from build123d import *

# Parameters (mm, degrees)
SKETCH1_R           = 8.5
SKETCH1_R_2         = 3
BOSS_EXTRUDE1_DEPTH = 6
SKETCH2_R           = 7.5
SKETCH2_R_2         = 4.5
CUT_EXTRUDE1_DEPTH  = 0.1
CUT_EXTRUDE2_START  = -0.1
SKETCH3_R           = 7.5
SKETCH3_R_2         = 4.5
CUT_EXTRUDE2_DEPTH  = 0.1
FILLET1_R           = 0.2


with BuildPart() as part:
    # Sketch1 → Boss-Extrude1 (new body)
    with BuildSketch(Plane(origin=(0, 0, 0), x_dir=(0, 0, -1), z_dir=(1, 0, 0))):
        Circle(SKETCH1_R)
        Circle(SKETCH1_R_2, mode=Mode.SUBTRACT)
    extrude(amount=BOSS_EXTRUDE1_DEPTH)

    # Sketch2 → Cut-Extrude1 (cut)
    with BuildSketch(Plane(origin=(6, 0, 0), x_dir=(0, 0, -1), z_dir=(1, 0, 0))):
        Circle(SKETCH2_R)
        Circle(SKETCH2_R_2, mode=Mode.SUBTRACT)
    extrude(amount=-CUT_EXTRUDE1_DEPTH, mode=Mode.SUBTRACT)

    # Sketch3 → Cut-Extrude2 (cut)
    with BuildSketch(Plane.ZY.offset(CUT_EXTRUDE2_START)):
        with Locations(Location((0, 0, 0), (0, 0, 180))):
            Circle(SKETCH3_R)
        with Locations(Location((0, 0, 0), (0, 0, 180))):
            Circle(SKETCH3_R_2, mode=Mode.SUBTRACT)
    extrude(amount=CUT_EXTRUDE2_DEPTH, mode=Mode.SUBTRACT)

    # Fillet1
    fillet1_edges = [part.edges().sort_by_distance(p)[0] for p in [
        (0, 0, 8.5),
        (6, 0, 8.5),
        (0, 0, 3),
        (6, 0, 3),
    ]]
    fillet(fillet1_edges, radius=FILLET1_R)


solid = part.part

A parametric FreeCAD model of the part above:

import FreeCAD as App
import Part
import Sketcher
from FreeCAD import Vector


def edges_at(feature, points):
    """Names of the edges that pass closest to the given points."""
    edges = feature.Shape.Edges
    near = lambda p: min(range(len(edges)), key=lambda i: edges[i].distToShape(Part.Vertex(*p))[0])
    return sorted({f"Edge{near(p) + 1}" for p in points})

doc = App.newDocument("Part")
body = doc.addObject("PartDesign::Body", "Body")

# Sketch on YZ plane
sketch1 = body.newObject("Sketcher::SketchObject", "Sketch")
sketch1.AttachmentSupport = (doc.getObject("YZ_Plane"), [""])
sketch1.MapMode = "FlatFace"
sketch1.addGeometry(Part.Circle(Vector(0, 0, 0), Vector(0, 0, 1), 8.5), False)
sketch1.addGeometry(Part.Circle(Vector(0, 0, 0), Vector(0, 0, 1), 3), False)
sketch1.addConstraint(Sketcher.Constraint("Coincident", 0, 3, -1, 1))
sketch1.addConstraint(Sketcher.Constraint("Coincident", 1, 3, -1, 1))
sketch1.addConstraint(Sketcher.Constraint("Diameter", 0, 17.0))
sketch1.addConstraint(Sketcher.Constraint("Diameter", 1, 6.0))
pad1 = body.newObject("PartDesign::Pad", "Pad")
pad1.Profile = sketch1
pad1.Length = 6

# Sketch on YZ plane
sketch2 = body.newObject("Sketcher::SketchObject", "Sketch001")
sketch2.AttachmentSupport = (doc.getObject("YZ_Plane"), [""])
sketch2.MapMode = "FlatFace"
sketch2.AttachmentOffset = App.Placement(Vector(0, 0, 6), App.Rotation())
sketch2.addGeometry(Part.Circle(Vector(0, 0, 0), Vector(0, 0, 1), 7.5), False)
sketch2.addGeometry(Part.Circle(Vector(0, 0, 0), Vector(0, 0, 1), 4.5), False)
sketch2.addConstraint(Sketcher.Constraint("Coincident", 0, 3, -1, 1))
sketch2.addConstraint(Sketcher.Constraint("Coincident", 1, 3, -1, 1))
sketch2.addConstraint(Sketcher.Constraint("Diameter", 0, 15.0))
sketch2.addConstraint(Sketcher.Constraint("Diameter", 1, 9.0))
pocket1 = body.newObject("PartDesign::Pocket", "Pocket")
pocket1.Profile = sketch2
pocket1.Length = 0.1

# Sketch on YZ plane
sketch3 = body.newObject("Sketcher::SketchObject", "Sketch002")
sketch3.AttachmentSupport = (doc.getObject("YZ_Plane"), [""])
sketch3.MapMode = "FlatFace"
sketch3.AttachmentOffset = App.Placement(Vector(0, 0, 0.1), App.Rotation())
sketch3.addGeometry(Part.Circle(Vector(0, 0, 0), Vector(0, 0, 1), 7.5), False)
sketch3.addGeometry(Part.Circle(Vector(0, 0, 0), Vector(0, 0, 1), 4.5), False)
sketch3.addConstraint(Sketcher.Constraint("Coincident", 0, 3, -1, 1))
sketch3.addConstraint(Sketcher.Constraint("Coincident", 1, 3, -1, 1))
sketch3.addConstraint(Sketcher.Constraint("Diameter", 0, 15.0))
sketch3.addConstraint(Sketcher.Constraint("Diameter", 1, 9.0))
pocket2 = body.newObject("PartDesign::Pocket", "Pocket001")
pocket2.Profile = sketch3
pocket2.Length = 0.1
doc.recompute()

fillet = body.newObject("PartDesign::Fillet", "Fillet")
fillet.Base = (pocket2, edges_at(pocket2, [
    (0, 0, 8.5),
    (6, 0, 8.5),
    (0, 0, 3),
    (6, 0, 3),
]))
fillet.Radius = 0.2

doc.recompute()
